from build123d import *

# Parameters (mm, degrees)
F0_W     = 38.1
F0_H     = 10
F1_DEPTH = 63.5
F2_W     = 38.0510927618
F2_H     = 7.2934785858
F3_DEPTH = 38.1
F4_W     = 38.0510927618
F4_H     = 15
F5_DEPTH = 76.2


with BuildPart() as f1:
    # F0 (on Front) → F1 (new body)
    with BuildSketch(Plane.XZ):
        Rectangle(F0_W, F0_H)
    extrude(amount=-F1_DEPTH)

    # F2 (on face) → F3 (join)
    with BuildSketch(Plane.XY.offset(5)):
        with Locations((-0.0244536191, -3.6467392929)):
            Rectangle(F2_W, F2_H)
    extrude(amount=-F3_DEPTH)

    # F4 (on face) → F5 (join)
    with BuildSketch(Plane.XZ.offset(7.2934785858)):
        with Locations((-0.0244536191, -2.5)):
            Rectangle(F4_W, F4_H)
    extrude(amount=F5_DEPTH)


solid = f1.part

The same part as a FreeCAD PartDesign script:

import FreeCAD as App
import Part
import Sketcher
from FreeCAD import Vector
Q = App.Units.Quantity

doc = App.newDocument("Part")
params = doc.addObject("Spreadsheet::Sheet", "Params")
for row, (alias, value) in enumerate([
    ("sketch1_width", "1.5 in"),
    ("pad1_length", "2.5 in"),
    ("pad2_length", "1.5 in"),
    ("pad3_length", "3 in"),
], start=1):
    params.set(f"A{row}", alias)
    params.set(f"B{row}", "=" + value)
    params.setAlias(f"B{row}", alias)

body = doc.addObject("PartDesign::Body", "Body")

# Sketch on XZ plane
sketch1 = body.newObject("Sketcher::SketchObject", "Sketch")
sketch1.AttachmentSupport = (doc.getObject("XZ_Plane"), [""])
sketch1.MapMode = "FlatFace"
sketch1.addGeometry([
    Part.LineSegment(Vector(-19, 5, 0), Vector(-19, -5, 0)),
    Part.LineSegment(Vector(-19, -5, 0), Vector(19, -5, 0)),
    Part.LineSegment(Vector(19, -5, 0), Vector(19, 5, 0)),
    Part.LineSegment(Vector(19, 5, 0), Vector(-19, 5, 0)),
], False)
sketch1.addConstraint([
    Sketcher.Constraint("Coincident", 0, 2, 1, 1),
    Sketcher.Constraint("Coincident", 1, 2, 2, 1),
    Sketcher.Constraint("Coincident", 2, 2, 3, 1),
    Sketcher.Constraint("Coincident", 3, 2, 0, 1),
    Sketcher.Constraint("Vertical", 0),
    Sketcher.Constraint("Horizontal", 1),
    Sketcher.Constraint("Vertical", 2),
    Sketcher.Constraint("Horizontal", 3),
    Sketcher.Constraint("Symmetric", 0, 2, 2, 2, -1, 1),
    Sketcher.Constraint("DistanceX", 1, 1, 1, 2, Q("1.5 in")),
    Sketcher.Constraint("DistanceY", 0, 2, 0, 1, Q("10 mm")),
])
sketch1.setExpression("Constraints[9]", "Params.sketch1_width")
pad1 = body.newObject("PartDesign::Pad", "Pad")
pad1.Profile = sketch1
pad1.setExpression("Length", "Params.pad1_length")
pad1.Reversed = True

# Sketch on XY plane
sketch2 = body.newObject("Sketcher::SketchObject", "Sketch001")
sketch2.AttachmentSupport = (doc.getObject("XY_Plane"), [""])
sketch2.MapMode = "FlatFace"
sketch2.AttachmentOffset = App.Placement(Vector(0, 0, 5), App.Rotation())
sketch2.addGeometry([
    Part.LineSegment(Vector(-19, 0, 0), Vector(-19, -7, 0)),
    Part.LineSegment(Vector(-19, -7, 0), Vector(19, -7, 0)),
    Part.LineSegment(Vector(19, -7, 0), Vector(19, 0, 0)),
    Part.LineSegment(Vector(19, 0, 0), Vector(-19, 0, 0)),
], False)
sketch2.addConstraint([
    Sketcher.Constraint("Coincident", 0, 2, 1, 1),
    Sketcher.Constraint("Coincident", 1, 2, 2, 1),
    Sketcher.Constraint("Coincident", 2, 2, 3, 1),
    Sketcher.Constraint("Coincident", 3, 2, 0, 1),
    Sketcher.Constraint("Vertical", 0),
    Sketcher.Constraint("Horizontal", 1),
    Sketcher.Constraint("Vertical", 2),
    Sketcher.Constraint("Horizontal", 3),
    Sketcher.Constraint("PointOnObject", 2, 2, -1),
    Sketcher.Constraint("DistanceX", 0, 2, -1, 1, Q("0.75 in")),
    Sketcher.Constraint("DistanceY", 0, 2, 0, 1, Q("7.293479 mm")),
    Sketcher.Constraint("DistanceX", 1, 1, 1, 2, Q("38.051093 mm")),
])
pad2 = body.newObject("PartDesign::Pad", "Pad001")
pad2.Profile = sketch2
pad2.setExpression("Length", "Params.pad2_length")
pad2.Reversed = True

# Sketch on XZ plane
sketch3 = body.newObject("Sketcher::SketchObject", "Sketch002")
sketch3.AttachmentSupport = (doc.getObject("XZ_Plane"), [""])
sketch3.MapMode = "FlatFace"
sketch3.AttachmentOffset = App.Placement(Vector(0, 0, 7.293479), App.Rotation())
sketch3.addGeometry([
    Part.LineSegment(Vector(-19, 5, 0), Vector(-19, -10, 0)),
    Part.LineSegment(Vector(-19, -10, 0), Vector(19, -10, 0)),
    Part.LineSegment(Vector(19, -10, 0), Vector(19, 5, 0)),
    Part.LineSegment(Vector(19, 5, 0), Vector(-19, 5, 0)),
], False)
sketch3.addConstraint([
    Sketcher.Constraint("Coincident", 0, 2, 1, 1),
    Sketcher.Constraint("Coincident", 1, 2, 2, 1),
    Sketcher.Constraint("Coincident", 2, 2, 3, 1),
    Sketcher.Constraint("Coincident", 3, 2, 0, 1),
    Sketcher.Constraint("Vertical", 0),
    Sketcher.Constraint("Horizontal", 1),
    Sketcher.Constraint("Vertical", 2),
    Sketcher.Constraint("Horizontal", 3),
    Sketcher.Constraint("DistanceX", 0, 2, -1, 1, Q("0.75 in")),
    Sketcher.Constraint("DistanceY", 0, 2, 0, 1, Q("15 mm")),
    Sketcher.Constraint("DistanceY", 0, 2, -1, 1, Q("10 mm")),
    Sketcher.Constraint("DistanceX", 1, 1, 1, 2, Q("38.051093 mm")),
])
pad3 = body.newObject("PartDesign::Pad", "Pad002")
pad3.Profile = sketch3
pad3.setExpression("Length", "Params.pad3_length")

doc.recompute()
